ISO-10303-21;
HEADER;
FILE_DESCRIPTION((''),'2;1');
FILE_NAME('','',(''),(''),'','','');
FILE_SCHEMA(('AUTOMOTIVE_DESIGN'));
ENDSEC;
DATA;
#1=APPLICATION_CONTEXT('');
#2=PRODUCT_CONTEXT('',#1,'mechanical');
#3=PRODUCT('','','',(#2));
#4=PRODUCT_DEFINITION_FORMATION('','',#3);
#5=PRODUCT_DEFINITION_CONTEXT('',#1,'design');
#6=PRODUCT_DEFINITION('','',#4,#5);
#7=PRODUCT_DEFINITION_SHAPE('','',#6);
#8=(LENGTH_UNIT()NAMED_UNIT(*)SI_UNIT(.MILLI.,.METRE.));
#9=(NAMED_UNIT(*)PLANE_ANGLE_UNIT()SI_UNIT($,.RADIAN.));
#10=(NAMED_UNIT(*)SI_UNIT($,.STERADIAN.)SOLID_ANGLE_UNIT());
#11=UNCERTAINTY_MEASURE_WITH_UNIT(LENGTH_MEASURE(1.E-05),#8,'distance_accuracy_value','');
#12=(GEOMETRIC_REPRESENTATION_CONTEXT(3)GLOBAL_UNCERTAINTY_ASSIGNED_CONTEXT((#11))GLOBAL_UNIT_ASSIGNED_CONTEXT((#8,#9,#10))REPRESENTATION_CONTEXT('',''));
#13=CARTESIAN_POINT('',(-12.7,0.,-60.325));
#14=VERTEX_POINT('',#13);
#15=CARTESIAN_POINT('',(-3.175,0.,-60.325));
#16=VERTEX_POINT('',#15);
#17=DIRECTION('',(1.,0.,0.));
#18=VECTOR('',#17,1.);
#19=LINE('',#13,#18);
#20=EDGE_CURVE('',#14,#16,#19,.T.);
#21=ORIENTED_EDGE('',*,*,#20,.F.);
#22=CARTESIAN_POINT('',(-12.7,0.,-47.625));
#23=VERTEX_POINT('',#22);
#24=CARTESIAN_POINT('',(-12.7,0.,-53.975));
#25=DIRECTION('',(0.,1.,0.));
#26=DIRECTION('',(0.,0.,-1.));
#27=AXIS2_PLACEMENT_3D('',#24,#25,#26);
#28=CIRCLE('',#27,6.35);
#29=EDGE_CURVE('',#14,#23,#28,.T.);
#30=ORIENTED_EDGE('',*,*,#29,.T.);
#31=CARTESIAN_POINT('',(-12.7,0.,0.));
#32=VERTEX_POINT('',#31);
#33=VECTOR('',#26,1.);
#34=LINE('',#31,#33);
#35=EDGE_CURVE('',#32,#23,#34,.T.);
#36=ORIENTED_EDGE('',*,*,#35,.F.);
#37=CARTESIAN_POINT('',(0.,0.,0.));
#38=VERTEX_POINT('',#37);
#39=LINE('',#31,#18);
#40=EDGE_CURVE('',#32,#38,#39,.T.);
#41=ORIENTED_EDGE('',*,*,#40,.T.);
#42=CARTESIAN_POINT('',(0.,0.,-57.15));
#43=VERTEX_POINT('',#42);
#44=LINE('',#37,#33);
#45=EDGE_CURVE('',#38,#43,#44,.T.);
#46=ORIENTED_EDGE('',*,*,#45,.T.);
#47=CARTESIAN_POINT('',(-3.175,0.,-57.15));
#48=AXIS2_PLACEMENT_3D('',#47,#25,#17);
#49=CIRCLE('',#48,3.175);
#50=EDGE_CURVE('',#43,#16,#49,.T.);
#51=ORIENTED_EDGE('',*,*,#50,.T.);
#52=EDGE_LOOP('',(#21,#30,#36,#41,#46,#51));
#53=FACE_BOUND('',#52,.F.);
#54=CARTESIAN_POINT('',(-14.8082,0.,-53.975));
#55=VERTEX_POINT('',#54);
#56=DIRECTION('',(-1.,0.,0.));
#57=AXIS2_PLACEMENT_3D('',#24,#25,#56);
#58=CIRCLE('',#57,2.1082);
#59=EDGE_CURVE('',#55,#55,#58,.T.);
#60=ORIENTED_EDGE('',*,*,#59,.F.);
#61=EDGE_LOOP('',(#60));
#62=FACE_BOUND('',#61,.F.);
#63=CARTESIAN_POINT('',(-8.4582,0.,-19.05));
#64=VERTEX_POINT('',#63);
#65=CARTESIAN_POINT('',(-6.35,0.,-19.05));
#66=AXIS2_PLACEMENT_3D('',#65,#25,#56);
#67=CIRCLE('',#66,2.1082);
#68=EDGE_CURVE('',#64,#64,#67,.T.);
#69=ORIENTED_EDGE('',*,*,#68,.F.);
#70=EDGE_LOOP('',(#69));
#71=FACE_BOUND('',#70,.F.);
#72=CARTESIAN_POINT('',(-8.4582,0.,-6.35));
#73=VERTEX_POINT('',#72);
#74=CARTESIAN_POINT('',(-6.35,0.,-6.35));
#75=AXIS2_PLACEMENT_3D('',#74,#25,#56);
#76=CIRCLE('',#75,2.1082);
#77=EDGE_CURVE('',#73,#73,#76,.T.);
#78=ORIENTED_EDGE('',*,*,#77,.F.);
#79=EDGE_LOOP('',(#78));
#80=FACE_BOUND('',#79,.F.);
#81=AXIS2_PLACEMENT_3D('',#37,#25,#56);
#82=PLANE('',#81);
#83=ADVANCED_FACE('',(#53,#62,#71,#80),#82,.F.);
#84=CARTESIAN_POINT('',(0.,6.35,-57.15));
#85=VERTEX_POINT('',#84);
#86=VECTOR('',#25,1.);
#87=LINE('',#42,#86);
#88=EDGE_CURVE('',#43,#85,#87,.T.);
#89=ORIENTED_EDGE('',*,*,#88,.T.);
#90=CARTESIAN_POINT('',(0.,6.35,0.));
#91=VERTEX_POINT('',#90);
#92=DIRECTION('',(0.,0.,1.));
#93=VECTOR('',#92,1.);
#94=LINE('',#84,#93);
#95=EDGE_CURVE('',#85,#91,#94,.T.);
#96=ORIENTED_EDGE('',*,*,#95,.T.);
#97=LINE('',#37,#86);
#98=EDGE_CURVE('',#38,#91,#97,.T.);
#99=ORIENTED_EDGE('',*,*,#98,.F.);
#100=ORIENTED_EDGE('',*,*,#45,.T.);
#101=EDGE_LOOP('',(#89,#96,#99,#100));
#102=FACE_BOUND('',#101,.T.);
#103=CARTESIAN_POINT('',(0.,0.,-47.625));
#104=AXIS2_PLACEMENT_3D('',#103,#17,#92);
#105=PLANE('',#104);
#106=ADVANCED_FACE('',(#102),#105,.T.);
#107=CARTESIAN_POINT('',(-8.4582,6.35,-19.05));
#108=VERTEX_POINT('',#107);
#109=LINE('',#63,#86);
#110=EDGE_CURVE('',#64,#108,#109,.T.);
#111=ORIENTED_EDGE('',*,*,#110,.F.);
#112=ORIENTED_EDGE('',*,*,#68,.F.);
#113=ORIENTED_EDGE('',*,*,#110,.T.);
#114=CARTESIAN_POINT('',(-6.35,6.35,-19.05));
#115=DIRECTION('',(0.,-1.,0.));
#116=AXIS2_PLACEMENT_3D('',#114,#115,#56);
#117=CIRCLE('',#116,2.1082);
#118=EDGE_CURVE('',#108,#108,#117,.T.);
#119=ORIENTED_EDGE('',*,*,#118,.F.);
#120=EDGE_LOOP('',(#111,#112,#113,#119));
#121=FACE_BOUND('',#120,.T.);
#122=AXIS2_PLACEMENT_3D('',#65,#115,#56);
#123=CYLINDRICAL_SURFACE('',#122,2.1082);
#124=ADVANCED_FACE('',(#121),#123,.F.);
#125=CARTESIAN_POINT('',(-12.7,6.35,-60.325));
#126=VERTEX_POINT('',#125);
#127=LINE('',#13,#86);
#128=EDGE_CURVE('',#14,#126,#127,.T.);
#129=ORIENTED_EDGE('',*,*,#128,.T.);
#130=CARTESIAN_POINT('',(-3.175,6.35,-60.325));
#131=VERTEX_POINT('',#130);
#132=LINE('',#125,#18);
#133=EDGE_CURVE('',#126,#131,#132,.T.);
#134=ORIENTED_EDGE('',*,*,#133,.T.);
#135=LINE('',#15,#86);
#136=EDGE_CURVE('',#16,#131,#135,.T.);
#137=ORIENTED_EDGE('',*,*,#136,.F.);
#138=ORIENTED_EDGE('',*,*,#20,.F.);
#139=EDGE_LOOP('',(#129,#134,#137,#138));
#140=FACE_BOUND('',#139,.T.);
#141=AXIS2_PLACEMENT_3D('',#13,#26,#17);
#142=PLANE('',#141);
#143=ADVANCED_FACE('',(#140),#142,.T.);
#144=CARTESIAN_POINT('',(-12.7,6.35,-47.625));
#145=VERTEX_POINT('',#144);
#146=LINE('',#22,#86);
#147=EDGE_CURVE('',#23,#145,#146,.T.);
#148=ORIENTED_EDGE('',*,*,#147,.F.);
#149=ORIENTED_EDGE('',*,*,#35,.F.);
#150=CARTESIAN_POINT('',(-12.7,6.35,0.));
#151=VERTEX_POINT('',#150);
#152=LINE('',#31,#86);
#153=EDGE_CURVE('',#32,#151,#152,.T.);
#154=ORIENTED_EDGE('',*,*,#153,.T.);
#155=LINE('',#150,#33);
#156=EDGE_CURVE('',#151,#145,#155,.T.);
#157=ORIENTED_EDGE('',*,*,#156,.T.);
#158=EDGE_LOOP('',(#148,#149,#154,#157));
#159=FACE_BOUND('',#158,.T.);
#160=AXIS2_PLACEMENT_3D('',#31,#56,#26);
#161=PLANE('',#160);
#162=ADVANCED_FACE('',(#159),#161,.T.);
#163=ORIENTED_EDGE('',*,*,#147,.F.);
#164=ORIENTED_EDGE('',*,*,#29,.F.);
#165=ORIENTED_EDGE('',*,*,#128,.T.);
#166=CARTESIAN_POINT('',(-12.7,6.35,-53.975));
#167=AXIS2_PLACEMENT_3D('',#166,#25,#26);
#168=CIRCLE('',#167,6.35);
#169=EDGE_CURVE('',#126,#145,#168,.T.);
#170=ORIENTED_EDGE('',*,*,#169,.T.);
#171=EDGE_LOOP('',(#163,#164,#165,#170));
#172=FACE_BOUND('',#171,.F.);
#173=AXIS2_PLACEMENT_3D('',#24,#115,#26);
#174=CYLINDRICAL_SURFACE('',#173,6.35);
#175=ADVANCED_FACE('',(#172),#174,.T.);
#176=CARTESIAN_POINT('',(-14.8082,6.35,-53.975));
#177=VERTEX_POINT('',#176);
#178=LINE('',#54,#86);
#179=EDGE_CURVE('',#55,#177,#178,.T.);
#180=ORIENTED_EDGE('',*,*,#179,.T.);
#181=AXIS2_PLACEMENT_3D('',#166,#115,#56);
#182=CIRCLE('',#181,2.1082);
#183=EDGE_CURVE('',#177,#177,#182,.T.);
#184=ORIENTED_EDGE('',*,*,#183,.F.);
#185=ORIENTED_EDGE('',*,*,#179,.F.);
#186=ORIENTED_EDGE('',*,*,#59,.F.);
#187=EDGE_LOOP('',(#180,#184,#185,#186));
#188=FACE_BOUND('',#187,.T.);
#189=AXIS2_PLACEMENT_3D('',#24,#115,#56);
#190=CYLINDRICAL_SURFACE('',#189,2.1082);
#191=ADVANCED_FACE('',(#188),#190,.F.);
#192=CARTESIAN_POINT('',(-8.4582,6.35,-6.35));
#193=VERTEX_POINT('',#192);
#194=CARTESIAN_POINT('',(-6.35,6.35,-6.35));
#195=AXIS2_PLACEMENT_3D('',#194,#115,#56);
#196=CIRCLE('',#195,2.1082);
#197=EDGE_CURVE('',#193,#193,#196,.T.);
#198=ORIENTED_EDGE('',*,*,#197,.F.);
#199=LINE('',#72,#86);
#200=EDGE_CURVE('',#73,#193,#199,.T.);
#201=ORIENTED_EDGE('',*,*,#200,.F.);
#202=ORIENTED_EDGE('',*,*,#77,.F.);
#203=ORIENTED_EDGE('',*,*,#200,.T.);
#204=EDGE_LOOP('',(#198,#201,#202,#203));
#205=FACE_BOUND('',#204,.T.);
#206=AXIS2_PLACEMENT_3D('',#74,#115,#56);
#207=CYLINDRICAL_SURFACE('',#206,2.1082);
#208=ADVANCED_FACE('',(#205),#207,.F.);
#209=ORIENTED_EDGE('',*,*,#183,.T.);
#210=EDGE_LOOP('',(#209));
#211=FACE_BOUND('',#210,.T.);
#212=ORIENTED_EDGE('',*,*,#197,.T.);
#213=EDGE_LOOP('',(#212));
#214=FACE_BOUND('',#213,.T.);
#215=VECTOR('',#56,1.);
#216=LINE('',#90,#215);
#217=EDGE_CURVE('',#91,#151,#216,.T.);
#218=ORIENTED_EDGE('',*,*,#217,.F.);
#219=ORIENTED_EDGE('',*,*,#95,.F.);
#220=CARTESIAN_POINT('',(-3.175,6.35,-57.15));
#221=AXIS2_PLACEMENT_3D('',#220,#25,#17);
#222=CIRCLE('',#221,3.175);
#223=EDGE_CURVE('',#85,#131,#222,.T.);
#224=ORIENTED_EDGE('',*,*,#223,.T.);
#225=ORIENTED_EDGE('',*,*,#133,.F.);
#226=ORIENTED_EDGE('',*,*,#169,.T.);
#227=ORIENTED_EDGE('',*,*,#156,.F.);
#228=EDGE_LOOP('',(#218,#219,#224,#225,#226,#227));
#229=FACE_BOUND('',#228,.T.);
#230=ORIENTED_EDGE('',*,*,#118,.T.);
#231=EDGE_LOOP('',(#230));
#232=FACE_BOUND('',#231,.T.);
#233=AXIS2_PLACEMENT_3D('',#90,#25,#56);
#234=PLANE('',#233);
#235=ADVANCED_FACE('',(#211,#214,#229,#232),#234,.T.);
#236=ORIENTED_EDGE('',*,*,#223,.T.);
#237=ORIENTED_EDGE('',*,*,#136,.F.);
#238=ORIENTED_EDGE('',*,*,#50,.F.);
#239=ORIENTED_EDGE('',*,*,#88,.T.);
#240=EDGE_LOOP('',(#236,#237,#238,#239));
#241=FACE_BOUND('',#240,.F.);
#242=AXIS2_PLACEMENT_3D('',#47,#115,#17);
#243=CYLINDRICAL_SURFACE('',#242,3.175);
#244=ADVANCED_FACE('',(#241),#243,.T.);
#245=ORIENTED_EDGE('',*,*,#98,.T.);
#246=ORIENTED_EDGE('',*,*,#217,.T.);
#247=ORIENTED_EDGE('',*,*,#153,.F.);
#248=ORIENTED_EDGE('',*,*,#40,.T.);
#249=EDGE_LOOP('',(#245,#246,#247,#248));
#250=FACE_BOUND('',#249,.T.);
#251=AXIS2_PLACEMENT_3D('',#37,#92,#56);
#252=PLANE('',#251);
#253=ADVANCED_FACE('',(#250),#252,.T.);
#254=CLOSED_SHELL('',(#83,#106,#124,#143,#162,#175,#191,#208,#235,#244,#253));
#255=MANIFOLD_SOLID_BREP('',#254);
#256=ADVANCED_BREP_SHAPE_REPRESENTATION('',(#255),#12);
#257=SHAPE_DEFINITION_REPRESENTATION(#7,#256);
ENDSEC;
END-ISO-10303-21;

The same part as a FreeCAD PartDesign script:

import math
import FreeCAD as App
import Part
import Sketcher

V = App.Vector
Q = App.Units.Quantity

doc = App.newDocument("Part")
params = doc.addObject("Spreadsheet::Sheet", "Params")
for row, (alias, value) in enumerate([
    ("sketch1_radius", "0.25 in"),
    ("sketch1_diameter", "0.166 in"),
    ("sketch1_width", "0.5 in"),
    ("sketch1_radius2", "0.125 in"),
    ("sketch1_height", "1.875 in"),
    ("pad1_length", "0.25 in"),
], start=1):
    params.set(f"A{row}", alias)
    params.set(f"B{row}", "=" + value)
    params.setAlias(f"B{row}", alias)

body = doc.addObject("PartDesign::Body", "Body")

# Sketch on XZ plane
sketch1 = doc.addObject("Sketcher::SketchObject", "Sketch")
body.addObject(sketch1)
sketch1.AttachmentSupport = (doc.XZ_Plane, [""])
sketch1.MapMode = "FlatFace"
sketch1.addGeometry([
    Part.LineSegment(V(0, 0, 0), V(0, -57.1, 0)),  # 0
    Part.ArcOfCircle(Part.Circle(V(-3.2, -57.1, 0), V(0, 0, 1), 3.2), math.radians(-90), math.radians(0)),  # 1
    Part.LineSegment(V(-3.2, -60.3, 0), V(-12.7, -60.3, 0)),  # 2
    Part.ArcOfCircle(Part.Circle(V(-12.7, -54, 0), V(0, 0, 1), 6.4), math.radians(90), math.radians(270)),  # 3
    Part.LineSegment(V(-12.7, -47.6, 0), V(-12.7, 0, 0)),  # 4
    Part.LineSegment(V(-12.7, 0, 0), V(0, 0, 0)),  # 5
    Part.Circle(V(-6.3, -6.3, 0), V(0, 0, 1), 2.1),  # 6
    Part.Circle(V(-6.3, -19.1, 0), V(0, 0, 1), 2.1),  # 7
    Part.Circle(V(-12.7, -54, 0), V(0, 0, 1), 2.1),  # 8
], False)
sketch1.addConstraint([
    Sketcher.Constraint("Tangent", 0, 2, 1, 2),
    Sketcher.Constraint("Tangent", 1, 1, 2, 1),
    Sketcher.Constraint("Tangent", 2, 2, 3, 2),
    Sketcher.Constraint("Coincident", 3, 1, 4, 1),
    Sketcher.Constraint("Coincident", 4, 2, 5, 1),
    Sketcher.Constraint("Coincident", 5, 2, 0, 1),
    Sketcher.Constraint("Vertical", 0),
    Sketcher.Constraint("Horizontal", 2),
    Sketcher.Constraint("Vertical", 4),
    Sketcher.Constraint("Horizontal", 5),
    Sketcher.Constraint("Coincident", 5, 2, -1, 1),
    Sketcher.Constraint("Coincident", 8, 3, 3, 3),
    Sketcher.Constraint("Equal", 6, 7),
    Sketcher.Constraint("Equal", 7, 8),
    Sketcher.Constraint("Vertical", 6, 3, 7, 3),
    Sketcher.Constraint("Vertical", 2, 2, 3, 1),
    Sketcher.Constraint("Radius", 3, Q("0.25 in")),
    Sketcher.Constraint("Diameter", 6, Q("0.166 in")),
    Sketcher.Constraint("DistanceX", 5, 1, 5, 2, Q("0.5 in")),
    Sketcher.Constraint("Radius", 1, Q("0.125 in")),
    Sketcher.Constraint("DistanceY", 7, 3, 6, 3, Q("0.5 in")),
    Sketcher.Constraint("DistanceY", 4, 1, 4, 2, Q("1.875 in")),
    Sketcher.Constraint("DistanceX", 6, 3, -1, 1, Q("0.25 in")),
    Sketcher.Constraint("DistanceY", 6, 3, -1, 1, Q("0.25 in")),
])
sketch1.setExpression("Constraints[16]", "Params.sketch1_radius")
sketch1.setExpression("Constraints[17]", "Params.sketch1_diameter")
sketch1.setExpression("Constraints[18]", "Params.sketch1_width")
sketch1.setExpression("Constraints[19]", "Params.sketch1_radius2")
sketch1.setExpression("Constraints[21]", "Params.sketch1_height")
pad1 = doc.addObject("PartDesign::Pad", "Pad")
body.addObject(pad1)
pad1.Profile = sketch1
pad1.setExpression("Length", "Params.pad1_length")
pad1.Reversed = True

doc.recompute()
